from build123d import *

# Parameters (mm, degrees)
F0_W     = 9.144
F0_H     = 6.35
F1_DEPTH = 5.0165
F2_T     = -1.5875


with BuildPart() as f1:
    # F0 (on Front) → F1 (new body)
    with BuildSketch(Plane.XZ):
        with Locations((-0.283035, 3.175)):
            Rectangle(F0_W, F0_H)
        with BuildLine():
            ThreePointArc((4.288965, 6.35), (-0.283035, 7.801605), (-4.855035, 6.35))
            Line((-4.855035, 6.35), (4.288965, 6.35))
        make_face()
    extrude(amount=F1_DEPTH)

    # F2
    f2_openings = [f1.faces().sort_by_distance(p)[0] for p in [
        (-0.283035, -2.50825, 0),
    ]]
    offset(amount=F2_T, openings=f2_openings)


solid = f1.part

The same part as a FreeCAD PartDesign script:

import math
import FreeCAD as App
import Part
import Sketcher

V = App.Vector
Q = App.Units.Quantity


def faces_at(feature, points):
    """Names of the faces that lie closest to the given points."""
    faces = feature.Shape.Faces
    near = lambda p: min(range(len(faces)), key=lambda i: faces[i].distToShape(Part.Vertex(*p))[0])
    return sorted({f"Face{near(p) + 1}" for p in points})

doc = App.newDocument("Part")
body = doc.addObject("PartDesign::Body", "Body")

sketch1 = body.newObject("Sketcher::SketchObject", "Sketch")
sketch1.AttachmentSupport = (doc.getObject("XZ_Plane"), [""])
sketch1.MapMode = "FlatFace"
sketch1.addGeometry([
    Part.LineSegment(V(-5, 6, 0), V(-5, 0, 0)),
    Part.LineSegment(V(-5, 0, 0), V(4, 0, 0)),
    Part.LineSegment(V(4, 0, 0), V(4, 6, 0)),
    Part.ArcOfCircle(Part.Circle(V(0, 0, 0), V(0, 0, 1), 8), math.radians(55), math.radians(125)),
], False)
sketch1.addConstraint([
    Sketcher.Constraint("Coincident", 0, 2, 1, 1),
    Sketcher.Constraint("Coincident", 1, 2, 2, 1),
    Sketcher.Constraint("Coincident", 2, 2, 3, 1),
    Sketcher.Constraint("Coincident", 3, 2, 0, 1),
    Sketcher.Constraint("Vertical", 0),
    Sketcher.Constraint("Horizontal", 1),
    Sketcher.Constraint("Vertical", 2),
    Sketcher.Constraint("PointOnObject", 0, 2, -1),
    Sketcher.Constraint("Horizontal", 2, 2, 3, 2),
    Sketcher.Constraint("DistanceX", 1, 1, 1, 2, Q("0.36 in")),
    Sketcher.Constraint("DistanceY", 0, 2, 0, 1, Q("0.25 in")),
    Sketcher.Constraint("Radius", 3, Q("7.925827 mm")),
    Sketcher.Constraint("DistanceX", 3, 3, -1, 1, Q("0.283035 mm")),
])
pad1 = body.newObject("PartDesign::Pad", "Pad")
pad1.Profile = sketch1
pad1.Length = Q("0.1975 in")
doc.recompute()

thickness = body.newObject("PartDesign::Thickness", "Thickness")
thickness.Base = (pad1, faces_at(pad1, [(-0.283, -2.508, 0)]))
thickness.Value = Q("0.0625 in")
thickness.Reversed = True
thickness.Join = "Arc"

doc.recompute()
